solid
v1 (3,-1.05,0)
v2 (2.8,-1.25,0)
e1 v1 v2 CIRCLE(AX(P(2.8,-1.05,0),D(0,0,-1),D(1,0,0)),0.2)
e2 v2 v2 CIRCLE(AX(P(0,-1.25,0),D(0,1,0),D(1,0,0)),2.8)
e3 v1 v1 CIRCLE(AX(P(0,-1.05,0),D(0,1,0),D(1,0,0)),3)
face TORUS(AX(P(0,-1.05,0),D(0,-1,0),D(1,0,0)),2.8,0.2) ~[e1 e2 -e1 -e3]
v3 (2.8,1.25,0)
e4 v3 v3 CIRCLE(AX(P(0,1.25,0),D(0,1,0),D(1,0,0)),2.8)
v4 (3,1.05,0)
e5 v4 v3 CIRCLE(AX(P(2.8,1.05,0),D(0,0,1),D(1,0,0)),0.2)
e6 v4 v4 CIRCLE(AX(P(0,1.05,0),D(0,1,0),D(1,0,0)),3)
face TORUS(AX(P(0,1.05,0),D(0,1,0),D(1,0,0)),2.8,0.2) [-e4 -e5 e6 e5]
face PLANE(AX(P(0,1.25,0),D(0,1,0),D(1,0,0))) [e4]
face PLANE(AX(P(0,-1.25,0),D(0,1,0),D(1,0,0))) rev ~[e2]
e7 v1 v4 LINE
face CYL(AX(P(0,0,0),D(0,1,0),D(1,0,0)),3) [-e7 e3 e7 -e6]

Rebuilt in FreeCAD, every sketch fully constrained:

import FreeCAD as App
import Part
import Sketcher
Q = App.Units.Quantity


def edges_at(feature, points):
    """Names of the edges that pass closest to the given points."""
    edges = feature.Shape.Edges
    near = lambda p: min(range(len(edges)), key=lambda i: edges[i].distToShape(Part.Vertex(*p))[0])
    return sorted({f"Edge{near(p) + 1}" for p in points})

doc = App.newDocument("Part")
body = doc.addObject("PartDesign::Body", "Body")

# Sketch on XZ plane
sketch1 = body.newObject("Sketcher::SketchObject", "Sketch")
sketch1.AttachmentSupport = (doc.getObject("XZ_Plane"), [""])
sketch1.MapMode = "FlatFace"
sketch1.addGeometry(Part.Circle(App.Vector(0, 0, 0), App.Vector(0, 0, 1), 3), False)
sketch1.addConstraint(Sketcher.Constraint("Coincident", 0, 3, -1, 1))
sketch1.addConstraint(Sketcher.Constraint("Diameter", 0, Q("6 mm")))
pad1 = body.newObject("PartDesign::Pad", "Pad")
pad1.Profile = sketch1
pad1.Length = 2.5
pad1.Midplane = True
doc.recompute()

fillet = body.newObject("PartDesign::Fillet", "Fillet")
fillet.Base = (pad1, edges_at(pad1, [(-3, -1.25, 0), (-3, 1.25, 0)]))
fillet.Radius = 0.2

doc.recompute()
